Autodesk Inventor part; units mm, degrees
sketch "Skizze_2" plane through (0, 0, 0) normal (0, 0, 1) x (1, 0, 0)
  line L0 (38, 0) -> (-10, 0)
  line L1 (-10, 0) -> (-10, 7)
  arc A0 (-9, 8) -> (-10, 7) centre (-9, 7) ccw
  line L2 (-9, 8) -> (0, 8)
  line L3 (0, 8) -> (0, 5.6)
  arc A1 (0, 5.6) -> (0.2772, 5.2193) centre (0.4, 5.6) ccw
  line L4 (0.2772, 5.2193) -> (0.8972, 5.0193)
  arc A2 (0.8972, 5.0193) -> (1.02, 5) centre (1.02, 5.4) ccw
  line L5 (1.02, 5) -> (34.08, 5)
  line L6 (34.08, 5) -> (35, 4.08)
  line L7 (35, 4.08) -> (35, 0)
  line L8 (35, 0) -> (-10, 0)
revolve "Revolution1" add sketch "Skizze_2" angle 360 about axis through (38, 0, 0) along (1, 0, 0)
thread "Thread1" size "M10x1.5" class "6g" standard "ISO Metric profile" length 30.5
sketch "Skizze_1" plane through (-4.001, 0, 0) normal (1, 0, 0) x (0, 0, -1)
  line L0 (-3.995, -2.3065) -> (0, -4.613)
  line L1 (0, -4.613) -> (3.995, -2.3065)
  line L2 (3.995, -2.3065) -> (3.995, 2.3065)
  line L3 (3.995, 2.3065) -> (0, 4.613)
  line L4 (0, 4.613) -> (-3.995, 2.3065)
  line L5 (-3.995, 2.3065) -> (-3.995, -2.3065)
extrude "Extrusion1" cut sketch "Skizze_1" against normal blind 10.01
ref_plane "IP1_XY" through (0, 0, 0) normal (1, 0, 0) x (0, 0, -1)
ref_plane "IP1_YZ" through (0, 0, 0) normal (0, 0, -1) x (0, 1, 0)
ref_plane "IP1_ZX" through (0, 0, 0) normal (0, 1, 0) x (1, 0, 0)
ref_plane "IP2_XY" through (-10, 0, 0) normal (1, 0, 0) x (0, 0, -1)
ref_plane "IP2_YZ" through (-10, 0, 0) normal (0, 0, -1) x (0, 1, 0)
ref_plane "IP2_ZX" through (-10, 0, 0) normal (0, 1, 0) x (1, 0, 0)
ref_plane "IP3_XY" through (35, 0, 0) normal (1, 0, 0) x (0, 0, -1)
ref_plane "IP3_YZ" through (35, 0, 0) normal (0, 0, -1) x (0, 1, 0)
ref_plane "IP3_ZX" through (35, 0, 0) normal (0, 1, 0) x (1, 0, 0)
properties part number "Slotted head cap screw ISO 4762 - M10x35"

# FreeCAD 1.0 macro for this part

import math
import FreeCAD as App
import Part
import Sketcher
Q = App.Units.Quantity

doc = App.newDocument("Part")
params = doc.addObject("Spreadsheet::Sheet", "Params")
for row, (alias, value) in enumerate([
    ("sketch1_radius", "1 mm"),
    ("sketch1_radius2", "0.4 mm"),
    ("sketch1_width", "45 mm"),
    ("sketch1_width2", "9 mm"),
    ("sketch1_height", "7 mm"),
    ("revolution_angle", "360 deg"),
    ("pocket1_length", "10.01 mm"),
], start=1):
    params.set(f"A{row}", alias)
    params.set(f"B{row}", "=" + value)
    params.setAlias(f"B{row}", alias)

body = doc.addObject("PartDesign::Body", "Body")

sketch1 = doc.addObject("Sketcher::SketchObject", "Sketch")
body.addObject(sketch1)
sketch1.AttachmentSupport = (doc.XY_Plane, [""])
sketch1.MapMode = "FlatFace"
sketch1.addGeometry(Part.LineSegment(App.Vector(-10, 0, 0), App.Vector(35, 0, 0)), False)
sketch1.addGeometry(Part.LineSegment(App.Vector(35, 0, 0), App.Vector(35, 4.08, 0)), False)
sketch1.addGeometry(Part.LineSegment(App.Vector(35, 4.08, 0), App.Vector(34.08, 5, 0)), False)
sketch1.addGeometry(Part.LineSegment(App.Vector(34.08, 5, 0), App.Vector(1.02, 5, 0)), False)
sketch1.addGeometry(Part.ArcOfCircle(Part.Circle(App.Vector(1.02, 5.4, 0), App.Vector(0, 0, 1), 0.4), math.radians(-107.88), math.radians(-90)), False)
sketch1.addGeometry(Part.LineSegment(App.Vector(0.9, 5.02, 0), App.Vector(0.28, 5.22, 0)), False)
sketch1.addGeometry(Part.ArcOfCircle(Part.Circle(App.Vector(0.4, 5.6, 0), App.Vector(0, 0, 1), 0.4), math.radians(180), math.radians(252)), False)
sketch1.addGeometry(Part.LineSegment(App.Vector(0, 5.6, 0), App.Vector(0, 8, 0)), False)
sketch1.addGeometry(Part.LineSegment(App.Vector(0, 8, 0), App.Vector(-9, 8, 0)), False)
sketch1.addGeometry(Part.ArcOfCircle(Part.Circle(App.Vector(-9, 7, 0), App.Vector(0, 0, 1), 1), math.radians(90), math.radians(180)), False)
sketch1.addGeometry(Part.LineSegment(App.Vector(-10, 7, 0), App.Vector(-10, 0, 0)), False)
sketch1.addConstraint(Sketcher.Constraint("Coincident", 0, 2, 1, 1))
sketch1.addConstraint(Sketcher.Constraint("Coincident", 1, 2, 2, 1))
sketch1.addConstraint(Sketcher.Constraint("Coincident", 2, 2, 3, 1))
sketch1.addConstraint(Sketcher.Constraint("Tangent", 3, 2, 4, 2))
sketch1.addConstraint(Sketcher.Constraint("Tangent", 4, 1, 5, 1))
sketch1.addConstraint(Sketcher.Constraint("Tangent", 5, 2, 6, 2))
sketch1.addConstraint(Sketcher.Constraint("Tangent", 6, 1, 7, 1))
sketch1.addConstraint(Sketcher.Constraint("Coincident", 7, 2, 8, 1))
sketch1.addConstraint(Sketcher.Constraint("Tangent", 8, 2, 9, 1))
sketch1.addConstraint(Sketcher.Constraint("Tangent", 9, 2, 10, 1))
sketch1.addConstraint(Sketcher.Constraint("Coincident", 10, 2, 0, 1))
sketch1.addConstraint(Sketcher.Constraint("Horizontal", 0))
sketch1.addConstraint(Sketcher.Constraint("Vertical", 1))
sketch1.addConstraint(Sketcher.Constraint("Horizontal", 3))
sketch1.addConstraint(Sketcher.Constraint("Vertical", 7))
sketch1.addConstraint(Sketcher.Constraint("Horizontal", 8))
sketch1.addConstraint(Sketcher.Constraint("Vertical", 10))
sketch1.addConstraint(Sketcher.Constraint("Equal", 4, 6))
sketch1.addConstraint(Sketcher.Constraint("PointOnObject", 0, 2, -1))
sketch1.addConstraint(Sketcher.Constraint("PointOnObject", 6, 1, -2))
sketch1.addConstraint(Sketcher.Constraint("Radius", 9, Q("1 mm")))
sketch1.addConstraint(Sketcher.Constraint("Radius", 4, Q("0.4 mm")))
sketch1.addConstraint(Sketcher.Constraint("DistanceX", 0, 1, 0, 2, Q("45 mm")))
sketch1.addConstraint(Sketcher.Constraint("DistanceX", 8, 2, 8, 1, Q("9 mm")))
sketch1.addConstraint(Sketcher.Constraint("DistanceY", 10, 2, 10, 1, Q("7 mm")))
sketch1.addConstraint(Sketcher.Constraint("Angle", 2, Q("135 deg")))
sketch1.addConstraint(Sketcher.Constraint("DistanceY", 7, 1, 7, 2, Q("2.4 mm")))
sketch1.addConstraint(Sketcher.Constraint("DistanceY", -1, 1, 2, 2, Q("5 mm")))
sketch1.addConstraint(Sketcher.Constraint("DistanceX", 3, 2, 3, 1, Q("33.06 mm")))
sketch1.addConstraint(Sketcher.Constraint("DistanceY", 1, 1, 1, 2, Q("4.08 mm")))
sketch1.setExpression("Constraints[20]", "Params.sketch1_radius")
sketch1.setExpression("Constraints[21]", "Params.sketch1_radius2")
sketch1.setExpression("Constraints[22]", "Params.sketch1_width")
sketch1.setExpression("Constraints[23]", "Params.sketch1_width2")
sketch1.setExpression("Constraints[24]", "Params.sketch1_height")
revolution = doc.addObject("PartDesign::Revolution", "Revolution")
body.addObject(revolution)
revolution.Profile = sketch1
revolution.ReferenceAxis = (sketch1, ["H_Axis"])
revolution.setExpression("Angle", "Params.revolution_angle")

sketch2 = doc.addObject("Sketcher::SketchObject", "Sketch001")
body.addObject(sketch2)
sketch2.AttachmentSupport = (doc.YZ_Plane, [""])
sketch2.MapMode = "FlatFace"
sketch2.AttachmentOffset = App.Placement(App.Vector(0, 0, -4.001), App.Rotation())
sketch2.addGeometry(Part.LineSegment(App.Vector(2.3, 4, 0), App.Vector(-2.3, 4, 0)), False)
sketch2.addGeometry(Part.LineSegment(App.Vector(-2.3, 4, 0), App.Vector(-4.6, 0, 0)), False)
sketch2.addGeometry(Part.LineSegment(App.Vector(-4.6, 0, 0), App.Vector(-2.3, -4, 0)), False)
sketch2.addGeometry(Part.LineSegment(App.Vector(-2.3, -4, 0), App.Vector(2.3, -4, 0)), False)
sketch2.addGeometry(Part.LineSegment(App.Vector(2.3, -4, 0), App.Vector(4.6, 0, 0)), False)
sketch2.addGeometry(Part.LineSegment(App.Vector(4.6, 0, 0), App.Vector(2.3, 4, 0)), False)
sketch2.addConstraint(Sketcher.Constraint("Coincident", 0, 2, 1, 1))
sketch2.addConstraint(Sketcher.Constraint("Coincident", 1, 2, 2, 1))
sketch2.addConstraint(Sketcher.Constraint("Coincident", 2, 2, 3, 1))
sketch2.addConstraint(Sketcher.Constraint("Coincident", 3, 2, 4, 1))
sketch2.addConstraint(Sketcher.Constraint("Coincident", 4, 2, 5, 1))
sketch2.addConstraint(Sketcher.Constraint("Coincident", 5, 2, 0, 1))
sketch2.addConstraint(Sketcher.Constraint("Horizontal", 0))
sketch2.addConstraint(Sketcher.Constraint("Horizontal", 3))
sketch2.addConstraint(Sketcher.Constraint("Symmetric", 0, 2, 3, 2, -1, 1))
sketch2.addConstraint(Sketcher.Constraint("Symmetric", 1, 2, 4, 2, -1, 1))
sketch2.addConstraint(Sketcher.Constraint("PointOnObject", 1, 2, -1))
sketch2.addConstraint(Sketcher.Constraint("Parallel", 2, 5))
sketch2.addConstraint(Sketcher.Constraint("Vertical", 0, 2, 2, 2))
sketch2.addConstraint(Sketcher.Constraint("Angle", 1, Q("-119.9998 deg")))
sketch2.addConstraint(Sketcher.Constraint("DistanceX", 0, 2, 0, 1, Q("4.613 mm")))
sketch2.addConstraint(Sketcher.Constraint("DistanceY", 2, 2, 0, 2, Q("7.99 mm")))
pocket1 = doc.addObject("PartDesign::Pocket", "Pocket")
body.addObject(pocket1)
pocket1.Profile = sketch2
pocket1.setExpression("Length", "Params.pocket1_length")

doc.recompute()
